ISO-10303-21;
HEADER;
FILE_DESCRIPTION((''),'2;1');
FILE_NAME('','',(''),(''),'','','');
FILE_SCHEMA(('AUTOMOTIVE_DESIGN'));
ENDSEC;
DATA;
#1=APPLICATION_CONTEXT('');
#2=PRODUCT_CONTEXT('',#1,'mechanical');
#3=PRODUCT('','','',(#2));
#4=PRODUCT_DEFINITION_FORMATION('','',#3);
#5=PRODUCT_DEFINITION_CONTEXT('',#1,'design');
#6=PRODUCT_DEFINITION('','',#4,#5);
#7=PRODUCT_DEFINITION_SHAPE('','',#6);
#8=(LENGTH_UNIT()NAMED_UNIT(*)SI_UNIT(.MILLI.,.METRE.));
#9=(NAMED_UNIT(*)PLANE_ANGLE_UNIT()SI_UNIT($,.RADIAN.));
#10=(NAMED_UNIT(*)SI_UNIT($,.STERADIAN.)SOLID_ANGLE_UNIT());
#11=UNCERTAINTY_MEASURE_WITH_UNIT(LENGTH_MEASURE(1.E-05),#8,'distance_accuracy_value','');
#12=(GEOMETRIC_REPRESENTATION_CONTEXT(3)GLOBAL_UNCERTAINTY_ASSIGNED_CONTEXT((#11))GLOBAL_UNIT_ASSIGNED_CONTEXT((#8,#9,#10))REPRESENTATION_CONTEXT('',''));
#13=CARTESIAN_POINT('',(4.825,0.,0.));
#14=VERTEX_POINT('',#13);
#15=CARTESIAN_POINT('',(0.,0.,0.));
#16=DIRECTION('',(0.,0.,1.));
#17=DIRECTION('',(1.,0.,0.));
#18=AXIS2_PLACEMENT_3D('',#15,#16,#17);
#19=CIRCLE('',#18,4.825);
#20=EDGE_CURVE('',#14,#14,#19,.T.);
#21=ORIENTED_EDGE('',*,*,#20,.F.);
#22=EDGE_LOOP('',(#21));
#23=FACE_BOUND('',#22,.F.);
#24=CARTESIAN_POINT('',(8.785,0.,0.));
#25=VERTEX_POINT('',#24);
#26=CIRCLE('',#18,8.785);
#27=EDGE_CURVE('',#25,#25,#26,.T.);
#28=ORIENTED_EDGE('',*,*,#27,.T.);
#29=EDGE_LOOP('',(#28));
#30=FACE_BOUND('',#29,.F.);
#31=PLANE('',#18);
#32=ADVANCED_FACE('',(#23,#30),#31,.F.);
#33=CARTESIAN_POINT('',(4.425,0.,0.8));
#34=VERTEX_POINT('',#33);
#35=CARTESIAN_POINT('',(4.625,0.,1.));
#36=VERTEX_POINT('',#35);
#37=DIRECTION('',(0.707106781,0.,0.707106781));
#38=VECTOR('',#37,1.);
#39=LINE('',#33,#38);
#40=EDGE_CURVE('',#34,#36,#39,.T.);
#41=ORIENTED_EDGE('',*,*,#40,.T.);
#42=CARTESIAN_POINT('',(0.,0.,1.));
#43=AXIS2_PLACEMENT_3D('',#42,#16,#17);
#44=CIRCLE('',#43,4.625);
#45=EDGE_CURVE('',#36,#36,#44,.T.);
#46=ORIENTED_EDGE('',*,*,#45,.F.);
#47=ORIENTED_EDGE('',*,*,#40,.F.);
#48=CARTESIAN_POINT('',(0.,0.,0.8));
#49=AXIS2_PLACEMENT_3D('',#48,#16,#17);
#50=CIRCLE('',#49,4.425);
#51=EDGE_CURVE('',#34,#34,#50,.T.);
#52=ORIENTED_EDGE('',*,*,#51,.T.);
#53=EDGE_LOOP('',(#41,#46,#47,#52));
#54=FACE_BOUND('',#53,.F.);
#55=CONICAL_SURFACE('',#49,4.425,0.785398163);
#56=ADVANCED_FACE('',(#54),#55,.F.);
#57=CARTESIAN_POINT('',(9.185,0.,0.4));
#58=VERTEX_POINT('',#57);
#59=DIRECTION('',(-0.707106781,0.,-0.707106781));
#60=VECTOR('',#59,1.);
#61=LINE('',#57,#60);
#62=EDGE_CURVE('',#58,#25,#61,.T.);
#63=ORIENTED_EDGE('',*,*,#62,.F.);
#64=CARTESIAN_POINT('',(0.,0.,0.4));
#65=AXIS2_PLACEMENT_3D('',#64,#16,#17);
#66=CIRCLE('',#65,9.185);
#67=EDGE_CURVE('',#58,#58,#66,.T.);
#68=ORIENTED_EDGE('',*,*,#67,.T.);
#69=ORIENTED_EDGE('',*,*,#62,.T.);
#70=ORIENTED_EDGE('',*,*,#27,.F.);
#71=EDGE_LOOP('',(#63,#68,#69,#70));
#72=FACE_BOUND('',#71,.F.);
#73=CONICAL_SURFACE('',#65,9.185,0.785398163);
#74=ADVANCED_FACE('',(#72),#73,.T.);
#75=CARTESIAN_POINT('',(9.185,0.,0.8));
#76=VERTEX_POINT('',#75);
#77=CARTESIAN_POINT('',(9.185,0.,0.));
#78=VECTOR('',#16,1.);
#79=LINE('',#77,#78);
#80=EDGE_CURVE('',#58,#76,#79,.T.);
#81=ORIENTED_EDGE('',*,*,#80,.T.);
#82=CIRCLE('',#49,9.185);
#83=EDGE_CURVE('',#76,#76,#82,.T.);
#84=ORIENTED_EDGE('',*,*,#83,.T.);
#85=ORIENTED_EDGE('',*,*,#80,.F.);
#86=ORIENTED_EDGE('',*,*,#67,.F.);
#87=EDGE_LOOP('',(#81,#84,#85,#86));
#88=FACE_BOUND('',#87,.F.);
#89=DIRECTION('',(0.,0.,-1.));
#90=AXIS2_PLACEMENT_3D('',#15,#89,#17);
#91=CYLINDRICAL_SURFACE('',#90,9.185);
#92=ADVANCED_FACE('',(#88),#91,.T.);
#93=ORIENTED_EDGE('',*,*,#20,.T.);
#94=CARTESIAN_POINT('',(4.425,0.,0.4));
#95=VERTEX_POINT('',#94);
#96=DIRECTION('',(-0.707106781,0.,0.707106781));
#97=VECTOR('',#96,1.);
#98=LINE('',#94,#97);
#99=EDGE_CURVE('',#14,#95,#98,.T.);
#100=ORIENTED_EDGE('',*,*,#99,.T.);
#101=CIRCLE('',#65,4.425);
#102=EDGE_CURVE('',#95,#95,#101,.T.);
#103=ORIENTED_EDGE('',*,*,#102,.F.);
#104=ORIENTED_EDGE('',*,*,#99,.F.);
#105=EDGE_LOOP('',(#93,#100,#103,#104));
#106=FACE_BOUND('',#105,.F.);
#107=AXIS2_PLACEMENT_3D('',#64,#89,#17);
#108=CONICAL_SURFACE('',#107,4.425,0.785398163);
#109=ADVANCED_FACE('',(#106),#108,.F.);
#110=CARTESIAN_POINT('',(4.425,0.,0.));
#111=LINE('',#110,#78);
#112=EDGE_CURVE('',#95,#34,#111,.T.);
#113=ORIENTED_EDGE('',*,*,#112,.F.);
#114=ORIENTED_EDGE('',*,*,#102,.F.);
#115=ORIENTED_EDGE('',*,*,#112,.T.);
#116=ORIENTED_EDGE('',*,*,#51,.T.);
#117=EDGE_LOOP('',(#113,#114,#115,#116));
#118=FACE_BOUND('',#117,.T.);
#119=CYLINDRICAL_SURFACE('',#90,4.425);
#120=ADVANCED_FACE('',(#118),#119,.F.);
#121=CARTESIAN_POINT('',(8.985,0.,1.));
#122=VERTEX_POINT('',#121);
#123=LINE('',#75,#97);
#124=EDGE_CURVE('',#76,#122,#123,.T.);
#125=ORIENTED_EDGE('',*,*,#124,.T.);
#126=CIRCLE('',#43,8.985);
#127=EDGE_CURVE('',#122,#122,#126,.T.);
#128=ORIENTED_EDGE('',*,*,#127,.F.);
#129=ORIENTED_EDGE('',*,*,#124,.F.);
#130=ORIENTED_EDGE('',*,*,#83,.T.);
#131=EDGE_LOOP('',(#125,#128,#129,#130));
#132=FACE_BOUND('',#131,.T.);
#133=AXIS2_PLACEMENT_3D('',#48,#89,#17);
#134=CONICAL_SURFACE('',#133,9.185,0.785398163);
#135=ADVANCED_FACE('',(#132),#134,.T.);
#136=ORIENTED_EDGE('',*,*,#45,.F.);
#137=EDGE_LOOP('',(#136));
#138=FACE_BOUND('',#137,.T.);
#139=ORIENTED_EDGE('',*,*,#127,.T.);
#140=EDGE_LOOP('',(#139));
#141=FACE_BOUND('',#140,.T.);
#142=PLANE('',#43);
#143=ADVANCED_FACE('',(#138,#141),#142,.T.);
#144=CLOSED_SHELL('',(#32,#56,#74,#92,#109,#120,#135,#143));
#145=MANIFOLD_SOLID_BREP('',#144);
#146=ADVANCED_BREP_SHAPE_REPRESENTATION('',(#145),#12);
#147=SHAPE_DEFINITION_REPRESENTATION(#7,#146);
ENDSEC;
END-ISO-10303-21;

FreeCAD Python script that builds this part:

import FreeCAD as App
import Part
import Sketcher
Q = App.Units.Quantity


def edges_at(feature, points):
    """Names of the edges that pass closest to the given points."""
    edges = feature.Shape.Edges
    near = lambda p: min(range(len(edges)), key=lambda i: edges[i].distToShape(Part.Vertex(*p))[0])
    return sorted({f"Edge{near(p) + 1}" for p in points})

doc = App.newDocument("Part")
params = doc.addObject("Spreadsheet::Sheet", "Params")
for row, (alias, value) in enumerate([
    ("sketch1_diameter", "18.37 mm"),
    ("sketch1_diameter2", "8.85 mm"),
    ("pad1_length", "1 mm"),
    ("chamfer_size", "0.4 mm"),
    ("chamfer2_size", "0.2 mm"),
    ("chamfer3_size", "0.4 mm"),
    ("chamfer4_size", "0.2 mm"),
], start=1):
    params.set(f"A{row}", alias)
    params.set(f"B{row}", "=" + value)
    params.setAlias(f"B{row}", alias)

body = doc.addObject("PartDesign::Body", "Body")

# Sketch on XY plane
sketch1 = body.newObject("Sketcher::SketchObject", "Sketch")
sketch1.AttachmentSupport = (doc.getObject("XY_Plane"), [""])
sketch1.MapMode = "FlatFace"
sketch1.addGeometry([
    Part.Circle(App.Vector(0, 0, 0), App.Vector(0, 0, 1), 9.185),
    Part.Circle(App.Vector(0, 0, 0), App.Vector(0, 0, 1), 4.425),
], False)
sketch1.addConstraint([
    Sketcher.Constraint("Coincident", 0, 3, -1, 1),
    Sketcher.Constraint("Coincident", 1, 3, -1, 1),
    Sketcher.Constraint("Diameter", 0, Q("18.37 mm")),
    Sketcher.Constraint("Diameter", 1, Q("8.85 mm")),
])
sketch1.setExpression("Constraints[2]", "Params.sketch1_diameter")
sketch1.setExpression("Constraints[3]", "Params.sketch1_diameter2")
pad1 = body.newObject("PartDesign::Pad", "Pad")
pad1.Profile = sketch1
pad1.setExpression("Length", "Params.pad1_length")
doc.recompute()

chamfer = body.newObject("PartDesign::Chamfer", "Chamfer")
chamfer.Base = (pad1, edges_at(pad1, [(-9.185, 0, 0)]))
chamfer.setExpression("Size", "Params.chamfer_size")
doc.recompute()

chamfer2 = body.newObject("PartDesign::Chamfer", "Chamfer001")
chamfer2.Base = (chamfer, edges_at(chamfer, [(-9.185, 0, 1)]))
chamfer2.setExpression("Size", "Params.chamfer2_size")
doc.recompute()

chamfer3 = body.newObject("PartDesign::Chamfer", "Chamfer002")
chamfer3.Base = (chamfer2, edges_at(chamfer2, [(-4.425, 0, 0)]))
chamfer3.setExpression("Size", "Params.chamfer3_size")
doc.recompute()

chamfer4 = body.newObject("PartDesign::Chamfer", "Chamfer003")
chamfer4.Base = (chamfer3, edges_at(chamfer3, [(-4.425, 0, 1)]))
chamfer4.setExpression("Size", "Params.chamfer4_size")

doc.recompute()
